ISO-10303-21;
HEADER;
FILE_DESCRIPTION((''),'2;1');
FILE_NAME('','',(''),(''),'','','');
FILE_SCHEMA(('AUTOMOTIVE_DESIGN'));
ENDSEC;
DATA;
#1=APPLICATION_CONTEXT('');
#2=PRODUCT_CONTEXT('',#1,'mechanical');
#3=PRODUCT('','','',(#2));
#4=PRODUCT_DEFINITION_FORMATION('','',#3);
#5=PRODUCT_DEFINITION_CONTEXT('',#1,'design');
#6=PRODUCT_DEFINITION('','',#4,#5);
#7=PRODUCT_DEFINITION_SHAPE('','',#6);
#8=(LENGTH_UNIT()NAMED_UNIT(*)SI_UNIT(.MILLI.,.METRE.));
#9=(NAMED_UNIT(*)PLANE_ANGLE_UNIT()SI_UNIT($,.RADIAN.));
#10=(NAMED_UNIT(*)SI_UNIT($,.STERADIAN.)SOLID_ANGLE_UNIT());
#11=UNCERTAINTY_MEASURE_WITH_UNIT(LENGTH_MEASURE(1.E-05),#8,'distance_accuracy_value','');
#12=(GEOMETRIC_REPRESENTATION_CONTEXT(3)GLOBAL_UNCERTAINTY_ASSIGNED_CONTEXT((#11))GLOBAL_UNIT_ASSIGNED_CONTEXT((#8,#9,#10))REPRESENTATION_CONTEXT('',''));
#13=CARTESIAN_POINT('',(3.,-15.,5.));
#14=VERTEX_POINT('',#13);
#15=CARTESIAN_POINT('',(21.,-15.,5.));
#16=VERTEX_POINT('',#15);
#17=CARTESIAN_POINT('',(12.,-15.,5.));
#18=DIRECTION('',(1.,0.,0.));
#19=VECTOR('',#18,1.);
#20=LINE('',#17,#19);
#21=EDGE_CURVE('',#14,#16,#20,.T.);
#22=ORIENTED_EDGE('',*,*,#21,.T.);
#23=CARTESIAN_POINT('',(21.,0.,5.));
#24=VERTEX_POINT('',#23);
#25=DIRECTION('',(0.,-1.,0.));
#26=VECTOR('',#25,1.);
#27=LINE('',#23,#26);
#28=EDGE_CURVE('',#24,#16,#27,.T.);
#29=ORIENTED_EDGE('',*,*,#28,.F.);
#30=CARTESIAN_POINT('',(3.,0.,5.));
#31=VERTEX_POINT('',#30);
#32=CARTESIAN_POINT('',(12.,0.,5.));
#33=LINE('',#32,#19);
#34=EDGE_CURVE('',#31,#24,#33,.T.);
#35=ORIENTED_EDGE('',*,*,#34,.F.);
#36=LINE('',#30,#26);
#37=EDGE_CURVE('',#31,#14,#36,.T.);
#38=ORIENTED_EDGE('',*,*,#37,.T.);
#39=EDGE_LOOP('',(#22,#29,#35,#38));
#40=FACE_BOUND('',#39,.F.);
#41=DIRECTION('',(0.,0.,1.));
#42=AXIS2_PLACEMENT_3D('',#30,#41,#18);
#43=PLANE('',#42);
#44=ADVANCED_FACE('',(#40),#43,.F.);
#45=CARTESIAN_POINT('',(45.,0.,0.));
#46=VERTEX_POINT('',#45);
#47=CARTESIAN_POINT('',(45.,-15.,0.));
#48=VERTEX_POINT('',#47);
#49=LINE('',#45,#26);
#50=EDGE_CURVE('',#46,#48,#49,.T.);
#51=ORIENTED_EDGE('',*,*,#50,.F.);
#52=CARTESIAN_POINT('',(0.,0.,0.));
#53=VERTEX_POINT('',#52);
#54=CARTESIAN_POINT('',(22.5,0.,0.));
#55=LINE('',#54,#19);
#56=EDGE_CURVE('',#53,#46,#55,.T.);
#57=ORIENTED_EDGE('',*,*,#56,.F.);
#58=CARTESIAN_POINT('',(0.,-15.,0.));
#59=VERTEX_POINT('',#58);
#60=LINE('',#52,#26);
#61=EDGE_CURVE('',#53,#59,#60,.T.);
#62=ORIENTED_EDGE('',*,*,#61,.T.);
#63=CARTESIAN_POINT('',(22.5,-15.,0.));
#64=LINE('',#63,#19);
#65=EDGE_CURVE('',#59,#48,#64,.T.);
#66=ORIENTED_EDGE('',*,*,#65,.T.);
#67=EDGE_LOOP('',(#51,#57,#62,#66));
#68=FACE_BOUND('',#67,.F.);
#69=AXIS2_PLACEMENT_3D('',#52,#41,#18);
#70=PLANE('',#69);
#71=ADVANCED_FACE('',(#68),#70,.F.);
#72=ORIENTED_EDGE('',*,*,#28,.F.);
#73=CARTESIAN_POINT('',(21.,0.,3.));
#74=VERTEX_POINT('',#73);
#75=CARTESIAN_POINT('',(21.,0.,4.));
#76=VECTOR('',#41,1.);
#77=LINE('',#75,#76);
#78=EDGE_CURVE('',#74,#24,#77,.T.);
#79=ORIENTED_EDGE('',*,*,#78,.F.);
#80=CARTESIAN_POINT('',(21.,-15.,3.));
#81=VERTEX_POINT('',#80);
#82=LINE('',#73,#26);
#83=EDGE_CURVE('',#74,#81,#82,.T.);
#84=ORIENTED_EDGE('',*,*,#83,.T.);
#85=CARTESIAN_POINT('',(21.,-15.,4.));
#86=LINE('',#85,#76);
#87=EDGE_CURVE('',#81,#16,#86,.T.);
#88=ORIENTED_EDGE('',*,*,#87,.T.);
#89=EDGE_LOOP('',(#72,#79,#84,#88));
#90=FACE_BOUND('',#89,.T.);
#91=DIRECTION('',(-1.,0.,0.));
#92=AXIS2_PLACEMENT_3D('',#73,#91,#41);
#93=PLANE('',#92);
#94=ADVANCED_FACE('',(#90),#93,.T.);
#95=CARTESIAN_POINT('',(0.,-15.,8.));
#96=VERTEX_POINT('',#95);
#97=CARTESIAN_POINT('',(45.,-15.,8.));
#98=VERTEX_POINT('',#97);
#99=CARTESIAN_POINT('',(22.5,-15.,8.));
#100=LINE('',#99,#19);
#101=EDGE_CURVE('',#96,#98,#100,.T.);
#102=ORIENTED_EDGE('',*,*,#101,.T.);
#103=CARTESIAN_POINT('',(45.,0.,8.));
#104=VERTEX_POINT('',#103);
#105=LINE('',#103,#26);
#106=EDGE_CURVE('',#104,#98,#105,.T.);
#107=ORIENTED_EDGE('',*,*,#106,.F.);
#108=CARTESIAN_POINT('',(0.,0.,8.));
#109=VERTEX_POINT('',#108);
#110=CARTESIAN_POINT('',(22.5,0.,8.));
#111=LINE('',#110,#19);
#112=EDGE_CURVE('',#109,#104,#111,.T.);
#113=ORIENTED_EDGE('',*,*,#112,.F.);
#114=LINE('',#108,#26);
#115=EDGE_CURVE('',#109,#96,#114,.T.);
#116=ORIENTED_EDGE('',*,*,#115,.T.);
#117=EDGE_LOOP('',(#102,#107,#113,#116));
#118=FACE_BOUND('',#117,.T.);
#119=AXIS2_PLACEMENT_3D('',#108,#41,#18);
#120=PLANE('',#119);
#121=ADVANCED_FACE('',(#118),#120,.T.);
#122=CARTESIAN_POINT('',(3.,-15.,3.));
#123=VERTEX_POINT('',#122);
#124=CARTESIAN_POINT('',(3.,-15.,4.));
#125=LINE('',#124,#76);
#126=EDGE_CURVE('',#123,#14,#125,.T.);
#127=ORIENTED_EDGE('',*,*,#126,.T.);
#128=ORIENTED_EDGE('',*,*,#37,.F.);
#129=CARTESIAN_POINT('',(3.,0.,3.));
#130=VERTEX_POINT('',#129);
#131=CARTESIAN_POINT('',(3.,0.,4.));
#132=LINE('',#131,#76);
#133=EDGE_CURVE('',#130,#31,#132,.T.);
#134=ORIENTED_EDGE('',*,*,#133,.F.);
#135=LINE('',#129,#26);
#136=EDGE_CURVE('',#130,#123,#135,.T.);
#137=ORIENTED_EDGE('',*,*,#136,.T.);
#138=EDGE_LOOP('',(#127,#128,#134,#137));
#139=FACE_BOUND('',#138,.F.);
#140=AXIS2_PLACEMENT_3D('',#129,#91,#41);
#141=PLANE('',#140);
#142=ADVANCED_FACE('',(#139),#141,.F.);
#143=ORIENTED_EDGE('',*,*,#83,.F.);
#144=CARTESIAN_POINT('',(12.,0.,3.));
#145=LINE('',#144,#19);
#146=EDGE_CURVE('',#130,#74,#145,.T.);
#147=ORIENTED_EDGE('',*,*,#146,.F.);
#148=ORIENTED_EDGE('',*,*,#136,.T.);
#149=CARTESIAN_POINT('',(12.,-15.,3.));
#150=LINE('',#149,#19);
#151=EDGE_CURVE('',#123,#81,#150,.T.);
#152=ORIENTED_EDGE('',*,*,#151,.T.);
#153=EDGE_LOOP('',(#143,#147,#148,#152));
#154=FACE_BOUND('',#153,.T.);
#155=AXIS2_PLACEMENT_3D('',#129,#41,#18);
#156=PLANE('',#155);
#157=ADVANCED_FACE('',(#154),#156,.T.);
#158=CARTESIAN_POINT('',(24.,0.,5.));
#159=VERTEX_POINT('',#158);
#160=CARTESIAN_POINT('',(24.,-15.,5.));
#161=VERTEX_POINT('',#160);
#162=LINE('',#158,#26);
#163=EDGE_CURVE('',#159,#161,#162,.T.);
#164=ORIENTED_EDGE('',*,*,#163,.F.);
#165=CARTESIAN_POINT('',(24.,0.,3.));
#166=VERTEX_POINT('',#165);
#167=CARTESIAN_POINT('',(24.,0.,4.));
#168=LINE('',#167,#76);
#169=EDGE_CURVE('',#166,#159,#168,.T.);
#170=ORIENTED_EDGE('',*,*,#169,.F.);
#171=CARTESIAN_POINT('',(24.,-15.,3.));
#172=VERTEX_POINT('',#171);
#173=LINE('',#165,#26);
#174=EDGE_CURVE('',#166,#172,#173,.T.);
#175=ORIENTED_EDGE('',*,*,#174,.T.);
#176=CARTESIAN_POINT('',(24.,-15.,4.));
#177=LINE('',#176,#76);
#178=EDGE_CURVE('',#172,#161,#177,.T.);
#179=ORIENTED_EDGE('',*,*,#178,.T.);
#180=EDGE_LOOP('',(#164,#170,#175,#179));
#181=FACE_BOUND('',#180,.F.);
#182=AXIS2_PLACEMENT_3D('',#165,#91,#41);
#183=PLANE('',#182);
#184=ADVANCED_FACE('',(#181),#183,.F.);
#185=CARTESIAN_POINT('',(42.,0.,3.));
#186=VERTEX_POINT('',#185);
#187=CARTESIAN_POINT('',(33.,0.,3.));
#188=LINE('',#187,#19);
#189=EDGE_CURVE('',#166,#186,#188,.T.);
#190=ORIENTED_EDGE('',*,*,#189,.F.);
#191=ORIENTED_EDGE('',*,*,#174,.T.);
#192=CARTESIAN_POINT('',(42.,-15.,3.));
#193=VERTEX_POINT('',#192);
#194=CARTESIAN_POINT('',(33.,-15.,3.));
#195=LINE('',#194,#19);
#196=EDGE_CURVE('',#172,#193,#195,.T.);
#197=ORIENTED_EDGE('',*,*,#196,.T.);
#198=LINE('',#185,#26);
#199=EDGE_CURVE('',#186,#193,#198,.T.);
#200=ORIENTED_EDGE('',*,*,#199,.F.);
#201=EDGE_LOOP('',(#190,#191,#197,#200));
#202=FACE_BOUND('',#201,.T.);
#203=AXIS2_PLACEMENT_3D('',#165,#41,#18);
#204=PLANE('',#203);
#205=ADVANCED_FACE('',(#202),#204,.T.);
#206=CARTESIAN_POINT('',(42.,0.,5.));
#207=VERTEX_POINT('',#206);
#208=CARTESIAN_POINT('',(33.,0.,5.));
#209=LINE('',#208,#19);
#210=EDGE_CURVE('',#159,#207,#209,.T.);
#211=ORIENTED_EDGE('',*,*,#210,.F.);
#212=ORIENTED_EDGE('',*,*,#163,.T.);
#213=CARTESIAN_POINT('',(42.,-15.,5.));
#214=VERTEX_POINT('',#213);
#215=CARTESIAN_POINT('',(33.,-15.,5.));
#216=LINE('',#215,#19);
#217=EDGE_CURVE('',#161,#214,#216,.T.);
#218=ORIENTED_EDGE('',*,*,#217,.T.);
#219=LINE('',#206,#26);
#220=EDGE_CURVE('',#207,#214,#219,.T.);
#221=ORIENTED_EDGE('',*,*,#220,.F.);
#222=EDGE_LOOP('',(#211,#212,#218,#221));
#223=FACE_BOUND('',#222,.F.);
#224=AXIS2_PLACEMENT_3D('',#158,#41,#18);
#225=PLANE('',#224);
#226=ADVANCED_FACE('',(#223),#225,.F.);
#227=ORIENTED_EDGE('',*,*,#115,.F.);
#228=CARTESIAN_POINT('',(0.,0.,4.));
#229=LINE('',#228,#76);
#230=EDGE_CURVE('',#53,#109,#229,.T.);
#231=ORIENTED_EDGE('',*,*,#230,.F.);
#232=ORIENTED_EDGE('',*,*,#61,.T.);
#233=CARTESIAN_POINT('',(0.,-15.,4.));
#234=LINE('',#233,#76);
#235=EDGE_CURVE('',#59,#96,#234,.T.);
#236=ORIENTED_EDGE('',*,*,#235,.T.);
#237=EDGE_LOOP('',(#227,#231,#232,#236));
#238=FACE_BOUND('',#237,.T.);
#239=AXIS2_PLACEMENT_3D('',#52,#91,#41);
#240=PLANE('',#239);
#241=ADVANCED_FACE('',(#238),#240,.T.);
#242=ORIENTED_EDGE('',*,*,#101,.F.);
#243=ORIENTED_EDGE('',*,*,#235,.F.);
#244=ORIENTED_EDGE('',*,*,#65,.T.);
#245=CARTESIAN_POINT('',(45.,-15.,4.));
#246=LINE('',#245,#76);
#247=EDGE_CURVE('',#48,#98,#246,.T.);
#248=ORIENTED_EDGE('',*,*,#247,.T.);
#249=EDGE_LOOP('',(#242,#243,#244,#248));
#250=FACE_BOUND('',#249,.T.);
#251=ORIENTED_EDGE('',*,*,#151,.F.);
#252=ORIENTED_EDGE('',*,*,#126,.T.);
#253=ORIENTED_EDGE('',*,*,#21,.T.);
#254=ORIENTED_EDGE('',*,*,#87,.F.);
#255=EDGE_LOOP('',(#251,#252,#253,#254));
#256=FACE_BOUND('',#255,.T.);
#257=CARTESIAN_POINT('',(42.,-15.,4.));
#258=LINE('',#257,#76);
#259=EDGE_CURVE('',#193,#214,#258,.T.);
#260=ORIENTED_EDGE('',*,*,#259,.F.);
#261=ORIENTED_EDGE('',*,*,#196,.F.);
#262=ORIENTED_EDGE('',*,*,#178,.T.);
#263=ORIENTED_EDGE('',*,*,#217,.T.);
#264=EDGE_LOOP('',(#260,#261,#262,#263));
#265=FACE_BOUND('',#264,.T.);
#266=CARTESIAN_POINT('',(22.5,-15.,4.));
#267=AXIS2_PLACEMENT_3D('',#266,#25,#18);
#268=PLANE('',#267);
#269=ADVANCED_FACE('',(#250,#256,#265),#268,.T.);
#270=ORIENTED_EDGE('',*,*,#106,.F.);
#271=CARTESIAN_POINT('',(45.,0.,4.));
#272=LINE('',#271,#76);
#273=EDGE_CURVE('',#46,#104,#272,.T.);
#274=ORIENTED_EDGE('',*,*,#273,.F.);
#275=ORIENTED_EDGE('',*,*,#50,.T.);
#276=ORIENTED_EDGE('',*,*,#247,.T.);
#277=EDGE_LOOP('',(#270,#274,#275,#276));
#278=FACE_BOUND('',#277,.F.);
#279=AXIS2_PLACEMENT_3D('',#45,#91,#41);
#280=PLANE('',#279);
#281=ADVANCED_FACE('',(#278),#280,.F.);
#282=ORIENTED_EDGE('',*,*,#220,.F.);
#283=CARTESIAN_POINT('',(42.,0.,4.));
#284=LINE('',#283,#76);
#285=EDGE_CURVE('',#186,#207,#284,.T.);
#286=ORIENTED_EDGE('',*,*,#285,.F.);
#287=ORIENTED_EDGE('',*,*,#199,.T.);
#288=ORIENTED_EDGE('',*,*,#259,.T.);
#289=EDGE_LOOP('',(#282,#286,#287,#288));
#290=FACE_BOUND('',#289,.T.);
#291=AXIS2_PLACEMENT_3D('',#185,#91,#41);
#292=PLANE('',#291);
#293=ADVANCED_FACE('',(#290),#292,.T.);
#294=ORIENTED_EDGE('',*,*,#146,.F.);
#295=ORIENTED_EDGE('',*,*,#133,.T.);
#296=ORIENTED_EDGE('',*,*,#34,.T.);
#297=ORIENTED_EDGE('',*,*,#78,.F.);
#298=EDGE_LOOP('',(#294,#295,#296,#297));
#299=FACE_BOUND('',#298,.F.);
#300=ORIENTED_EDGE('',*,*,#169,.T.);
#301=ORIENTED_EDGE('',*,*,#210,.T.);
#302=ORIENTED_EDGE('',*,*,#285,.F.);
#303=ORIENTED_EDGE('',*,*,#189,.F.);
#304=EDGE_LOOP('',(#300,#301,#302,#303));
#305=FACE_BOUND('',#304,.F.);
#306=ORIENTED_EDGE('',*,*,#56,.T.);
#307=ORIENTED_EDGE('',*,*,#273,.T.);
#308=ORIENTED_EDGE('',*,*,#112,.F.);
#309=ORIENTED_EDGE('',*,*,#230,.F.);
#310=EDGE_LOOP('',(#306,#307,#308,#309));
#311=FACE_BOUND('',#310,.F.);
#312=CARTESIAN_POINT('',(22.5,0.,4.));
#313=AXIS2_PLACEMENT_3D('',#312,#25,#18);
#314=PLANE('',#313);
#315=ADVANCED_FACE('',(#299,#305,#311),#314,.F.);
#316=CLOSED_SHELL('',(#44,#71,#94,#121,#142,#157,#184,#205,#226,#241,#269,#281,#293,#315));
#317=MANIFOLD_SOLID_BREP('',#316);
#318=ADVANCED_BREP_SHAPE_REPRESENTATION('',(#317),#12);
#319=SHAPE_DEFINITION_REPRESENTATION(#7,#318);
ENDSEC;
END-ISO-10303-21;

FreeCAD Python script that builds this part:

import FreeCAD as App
import Part
import Sketcher


def add_polygon(sketch, points):
    """Adds a closed chain of lines whose ends are joined by coincident constraints."""
    first, n = sketch.GeometryCount, len(points)
    for a, b in zip(points, points[1:] + points[:1]):
        sketch.addGeometry(Part.LineSegment(App.Vector(*a, 0), App.Vector(*b, 0)), False)
    for i in range(n):
        sketch.addConstraint(Sketcher.Constraint("Coincident", first + i, 2, first + (i + 1) % n, 1))

doc = App.newDocument("Part")
params = doc.addObject("Spreadsheet::Sheet", "Params")
for row, (alias, value) in enumerate([
    ("sketch1_width", "45 mm"),
    ("sketch1_width2", "18 mm"),
    ("sketch1_height", "8 mm"),
    ("sketch1_height2", "2 mm"),
    ("pad1_length", "15 mm"),
], start=1):
    params.set(f"A{row}", alias)
    params.set(f"B{row}", "=" + value)
    params.setAlias(f"B{row}", alias)

body = doc.addObject("PartDesign::Body", "Body")

# Sketch on XZ plane
sketch1 = doc.addObject("Sketcher::SketchObject", "Sketch")
body.addObject(sketch1)
sketch1.AttachmentSupport = (doc.XZ_Plane, [""])
sketch1.MapMode = "FlatFace"
add_polygon(sketch1, [(0, 8), (0, 0), (45, 0), (45, 8)])  # lines 0-3
add_polygon(sketch1, [(21, 3), (3, 3), (3, 5), (21, 5)])  # lines 4-7
add_polygon(sketch1, [(42, 3), (24, 3), (24, 5), (42, 5)])  # lines 8-11
sketch1.addConstraint([
    Sketcher.Constraint("Vertical", 0),
    Sketcher.Constraint("Horizontal", 1),
    Sketcher.Constraint("Vertical", 2),
    Sketcher.Constraint("Horizontal", 3),
    Sketcher.Constraint("Horizontal", 4),
    Sketcher.Constraint("Vertical", 5),
    Sketcher.Constraint("Horizontal", 6),
    Sketcher.Constraint("Vertical", 7),
    Sketcher.Constraint("Horizontal", 8),
    Sketcher.Constraint("Vertical", 9),
    Sketcher.Constraint("Horizontal", 10),
    Sketcher.Constraint("Vertical", 11),
    Sketcher.Constraint("Coincident", 0, 2, -1, 1),
    Sketcher.Constraint("Horizontal", 7, 2, 8, 2),
    Sketcher.Constraint("Horizontal", 6, 2, 9, 2),
    Sketcher.Constraint("Equal", 6, 8),
    Sketcher.Constraint("DistanceX", 1, 1, 1, 2, 45.0),
    Sketcher.Constraint("DistanceX", 4, 2, 4, 1, 18.0),
    Sketcher.Constraint("DistanceY", 0, 2, 0, 1, 8.0),
    Sketcher.Constraint("DistanceY", 5, 1, 5, 2, 2.0),
    Sketcher.Constraint("DistanceX", -1, 1, 4, 2, 3.0),
    Sketcher.Constraint("DistanceY", -1, 1, 4, 2, 3.0),
    Sketcher.Constraint("DistanceX", -1, 1, 8, 2, 24.0),
])
sketch1.setExpression("Constraints[28]", "Params.sketch1_width")
sketch1.setExpression("Constraints[29]", "Params.sketch1_width2")
sketch1.setExpression("Constraints[30]", "Params.sketch1_height")
sketch1.setExpression("Constraints[31]", "Params.sketch1_height2")
pad1 = doc.addObject("PartDesign::Pad", "Pad")
body.addObject(pad1)
pad1.Profile = sketch1
pad1.setExpression("Length", "Params.pad1_length")

doc.recompute()
